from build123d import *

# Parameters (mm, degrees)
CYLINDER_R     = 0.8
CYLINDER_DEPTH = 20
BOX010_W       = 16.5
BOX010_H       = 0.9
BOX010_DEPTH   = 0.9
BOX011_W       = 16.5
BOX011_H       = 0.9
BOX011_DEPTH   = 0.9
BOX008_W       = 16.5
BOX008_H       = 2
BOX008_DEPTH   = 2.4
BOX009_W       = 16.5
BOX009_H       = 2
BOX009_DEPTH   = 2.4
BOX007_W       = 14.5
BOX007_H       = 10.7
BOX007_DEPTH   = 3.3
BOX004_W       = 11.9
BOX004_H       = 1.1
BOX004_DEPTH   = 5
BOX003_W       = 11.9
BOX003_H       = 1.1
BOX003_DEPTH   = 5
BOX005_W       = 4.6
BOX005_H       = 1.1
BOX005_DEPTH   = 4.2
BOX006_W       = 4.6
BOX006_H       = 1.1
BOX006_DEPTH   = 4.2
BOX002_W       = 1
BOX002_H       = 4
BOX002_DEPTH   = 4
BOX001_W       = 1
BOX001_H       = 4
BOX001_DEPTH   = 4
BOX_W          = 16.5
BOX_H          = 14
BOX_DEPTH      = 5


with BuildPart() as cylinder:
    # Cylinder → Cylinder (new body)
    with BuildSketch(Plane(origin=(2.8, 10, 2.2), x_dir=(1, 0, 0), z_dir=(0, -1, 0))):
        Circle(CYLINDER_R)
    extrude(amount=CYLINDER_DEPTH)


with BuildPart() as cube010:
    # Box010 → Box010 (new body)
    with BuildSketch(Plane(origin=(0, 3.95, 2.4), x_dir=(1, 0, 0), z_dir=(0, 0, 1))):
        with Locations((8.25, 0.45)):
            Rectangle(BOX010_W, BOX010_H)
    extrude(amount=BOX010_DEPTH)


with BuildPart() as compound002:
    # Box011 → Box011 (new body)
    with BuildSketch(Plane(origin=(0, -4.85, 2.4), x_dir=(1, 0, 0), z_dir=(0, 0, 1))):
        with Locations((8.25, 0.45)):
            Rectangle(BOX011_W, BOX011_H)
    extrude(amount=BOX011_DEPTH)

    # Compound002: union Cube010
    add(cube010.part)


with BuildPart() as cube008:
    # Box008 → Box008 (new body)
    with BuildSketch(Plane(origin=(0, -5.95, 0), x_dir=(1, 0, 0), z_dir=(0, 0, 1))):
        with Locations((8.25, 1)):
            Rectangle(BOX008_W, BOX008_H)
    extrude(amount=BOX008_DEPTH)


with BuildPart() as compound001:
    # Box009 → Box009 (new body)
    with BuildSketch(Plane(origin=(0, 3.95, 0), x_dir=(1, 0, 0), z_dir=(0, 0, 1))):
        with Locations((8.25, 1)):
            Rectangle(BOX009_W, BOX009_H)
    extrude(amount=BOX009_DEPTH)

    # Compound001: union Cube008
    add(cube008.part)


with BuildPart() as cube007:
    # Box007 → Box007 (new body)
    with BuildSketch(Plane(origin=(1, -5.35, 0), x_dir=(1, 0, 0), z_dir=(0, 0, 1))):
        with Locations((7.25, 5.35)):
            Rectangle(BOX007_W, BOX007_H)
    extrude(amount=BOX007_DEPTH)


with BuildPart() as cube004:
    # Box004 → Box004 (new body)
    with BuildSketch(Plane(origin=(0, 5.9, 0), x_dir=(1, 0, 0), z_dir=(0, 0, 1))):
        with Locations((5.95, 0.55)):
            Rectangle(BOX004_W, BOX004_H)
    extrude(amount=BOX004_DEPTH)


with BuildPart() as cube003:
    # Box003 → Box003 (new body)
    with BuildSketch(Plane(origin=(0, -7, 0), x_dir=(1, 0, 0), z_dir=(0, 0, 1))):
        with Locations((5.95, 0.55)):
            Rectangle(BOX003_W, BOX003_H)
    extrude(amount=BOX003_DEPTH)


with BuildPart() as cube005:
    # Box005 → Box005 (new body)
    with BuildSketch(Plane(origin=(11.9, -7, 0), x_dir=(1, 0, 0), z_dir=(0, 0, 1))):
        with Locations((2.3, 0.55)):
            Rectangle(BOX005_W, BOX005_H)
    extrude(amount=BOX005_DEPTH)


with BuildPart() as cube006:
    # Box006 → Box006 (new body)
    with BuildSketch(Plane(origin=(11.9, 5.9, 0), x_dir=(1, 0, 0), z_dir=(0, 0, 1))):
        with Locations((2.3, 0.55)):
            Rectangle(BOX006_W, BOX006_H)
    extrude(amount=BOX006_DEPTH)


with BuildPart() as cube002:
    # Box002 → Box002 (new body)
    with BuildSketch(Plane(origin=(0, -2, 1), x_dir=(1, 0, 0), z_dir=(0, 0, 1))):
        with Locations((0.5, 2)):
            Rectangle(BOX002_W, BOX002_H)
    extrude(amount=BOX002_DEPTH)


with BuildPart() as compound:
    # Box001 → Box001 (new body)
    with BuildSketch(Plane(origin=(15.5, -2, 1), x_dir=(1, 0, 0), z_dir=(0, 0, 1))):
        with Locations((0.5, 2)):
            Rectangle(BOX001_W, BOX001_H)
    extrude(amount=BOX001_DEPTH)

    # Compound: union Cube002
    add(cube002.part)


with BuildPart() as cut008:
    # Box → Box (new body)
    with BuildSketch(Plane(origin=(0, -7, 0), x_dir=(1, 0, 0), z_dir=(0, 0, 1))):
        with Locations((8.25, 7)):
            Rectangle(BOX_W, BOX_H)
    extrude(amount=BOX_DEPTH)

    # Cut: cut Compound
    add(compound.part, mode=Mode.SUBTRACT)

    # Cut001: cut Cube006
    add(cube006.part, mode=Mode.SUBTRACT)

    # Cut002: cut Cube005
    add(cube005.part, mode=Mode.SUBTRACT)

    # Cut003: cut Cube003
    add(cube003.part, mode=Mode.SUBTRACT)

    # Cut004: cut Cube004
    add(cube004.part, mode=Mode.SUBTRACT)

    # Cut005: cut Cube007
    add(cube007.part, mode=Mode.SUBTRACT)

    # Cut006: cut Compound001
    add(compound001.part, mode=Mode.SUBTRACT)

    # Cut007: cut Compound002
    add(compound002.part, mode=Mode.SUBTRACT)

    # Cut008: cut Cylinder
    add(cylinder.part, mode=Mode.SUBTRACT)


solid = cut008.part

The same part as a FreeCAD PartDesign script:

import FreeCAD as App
import Part
import Sketcher

V = App.Vector

doc = App.newDocument("Part")
params = doc.addObject("Spreadsheet::Sheet", "Params")
for row, (alias, value) in enumerate([
    ("sketch1_diameter", "1.6 mm"),
    ("pad1_length", "20 mm"),
    ("sketch2_width", "16.5 mm"),
    ("sketch2_height", "0.9 mm"),
    ("pad2_length", "0.9 mm"),
    ("sketch3_width", "16.5 mm"),
    ("sketch3_height", "0.9 mm"),
    ("pad3_length", "0.9 mm"),
    ("sketch4_height", "2 mm"),
    ("sketch4_width", "16.5 mm"),
    ("pad4_length", "2.4 mm"),
    ("sketch5_height", "2 mm"),
    ("sketch5_width", "16.5 mm"),
    ("pad5_length", "2.4 mm"),
    ("sketch6_width", "14.5 mm"),
    ("sketch6_height", "10.7 mm"),
    ("pad6_length", "3.3 mm"),
    ("sketch7_width", "11.9 mm"),
    ("sketch7_height", "1.1 mm"),
    ("pad7_length", "5 mm"),
    ("sketch8_width", "11.9 mm"),
    ("sketch8_height", "1.1 mm"),
    ("pad8_length", "5 mm"),
    ("sketch9_width", "4.6 mm"),
    ("sketch9_height", "1.1 mm"),
    ("pad9_length", "4.2 mm"),
    ("sketch10_width", "4.6 mm"),
    ("sketch10_height", "1.1 mm"),
    ("pad10_length", "4.2 mm"),
    ("sketch11_width", "1 mm"),
    ("sketch11_height", "4 mm"),
    ("pad11_length", "4 mm"),
    ("sketch12_width", "1 mm"),
    ("sketch12_height", "4 mm"),
    ("pad12_length", "4 mm"),
    ("sketch13_height", "14 mm"),
    ("sketch13_width", "16.5 mm"),
    ("pad13_length", "5 mm"),
], start=1):
    params.set(f"A{row}", alias)
    params.set(f"B{row}", "=" + value)
    params.setAlias(f"B{row}", alias)

body = doc.addObject("PartDesign::Body", "Body")

sketch1 = body.newObject("Sketcher::SketchObject", "Sketch")
sketch1.AttachmentSupport = (doc.getObject("XZ_Plane"), [""])
sketch1.MapMode = "FlatFace"
sketch1.AttachmentOffset = App.Placement(V(0, 0, -10), App.Rotation())
sketch1.addGeometry(Part.Circle(V(2.8, 2.2, 0), V(0, 0, 1), 0.8), False)
sketch1.addConstraint([
    Sketcher.Constraint("Diameter", 0, 1.6),
    Sketcher.Constraint("DistanceX", -1, 1, 0, 3, 2.8),
    Sketcher.Constraint("DistanceY", -1, 1, 0, 3, 2.2),
])
sketch1.setExpression("Constraints[0]", "Params.sketch1_diameter")
pad1 = body.newObject("PartDesign::Pad", "Pad")
pad1.Profile = sketch1
pad1.setExpression("Length", "Params.pad1_length")
body2 = doc.addObject("PartDesign::Body", "Body001")

sketch2 = body2.newObject("Sketcher::SketchObject", "Sketch001")
sketch2.AttachmentSupport = (doc.getObject("XY_Plane001"), [""])
sketch2.MapMode = "FlatFace"
sketch2.AttachmentOffset = App.Placement(V(0, 0, 2.4), App.Rotation())
sketch2.addGeometry([
    Part.LineSegment(V(0, 4.8, 0), V(0, 4, 0)),
    Part.LineSegment(V(0, 4, 0), V(16.5, 4, 0)),
    Part.LineSegment(V(16.5, 4, 0), V(16.5, 4.8, 0)),
    Part.LineSegment(V(16.5, 4.8, 0), V(0, 4.8, 0)),
], False)
sketch2.addConstraint([
    Sketcher.Constraint("Coincident", 0, 2, 1, 1),
    Sketcher.Constraint("Coincident", 1, 2, 2, 1),
    Sketcher.Constraint("Coincident", 2, 2, 3, 1),
    Sketcher.Constraint("Coincident", 3, 2, 0, 1),
    Sketcher.Constraint("Vertical", 0),
    Sketcher.Constraint("Horizontal", 1),
    Sketcher.Constraint("Vertical", 2),
    Sketcher.Constraint("Horizontal", 3),
    Sketcher.Constraint("PointOnObject", 0, 2, -2),
    Sketcher.Constraint("DistanceX", 1, 1, 1, 2, 16.5),
    Sketcher.Constraint("DistanceY", 0, 2, 0, 1, 0.9),
    Sketcher.Constraint("DistanceY", -1, 1, 0, 2, 3.95),
])
sketch2.setExpression("Constraints[9]", "Params.sketch2_width")
sketch2.setExpression("Constraints[10]", "Params.sketch2_height")
pad2 = body2.newObject("PartDesign::Pad", "Pad001")
pad2.Profile = sketch2
pad2.setExpression("Length", "Params.pad2_length")
body3 = doc.addObject("PartDesign::Body", "Body002")
body3.AllowCompound = True

sketch3 = body3.newObject("Sketcher::SketchObject", "Sketch002")
sketch3.AttachmentSupport = (doc.getObject("XY_Plane002"), [""])
sketch3.MapMode = "FlatFace"
sketch3.AttachmentOffset = App.Placement(V(0, 0, 2.4), App.Rotation())
sketch3.addGeometry([
    Part.LineSegment(V(0, -4, 0), V(0, -4.8, 0)),
    Part.LineSegment(V(0, -4.8, 0), V(16.5, -4.8, 0)),
    Part.LineSegment(V(16.5, -4.8, 0), V(16.5, -4, 0)),
    Part.LineSegment(V(16.5, -4, 0), V(0, -4, 0)),
], False)
sketch3.addConstraint([
    Sketcher.Constraint("Coincident", 0, 2, 1, 1),
    Sketcher.Constraint("Coincident", 1, 2, 2, 1),
    Sketcher.Constraint("Coincident", 2, 2, 3, 1),
    Sketcher.Constraint("Coincident", 3, 2, 0, 1),
    Sketcher.Constraint("Vertical", 0),
    Sketcher.Constraint("Horizontal", 1),
    Sketcher.Constraint("Vertical", 2),
    Sketcher.Constraint("Horizontal", 3),
    Sketcher.Constraint("PointOnObject", 0, 2, -2),
    Sketcher.Constraint("DistanceX", 1, 1, 1, 2, 16.5),
    Sketcher.Constraint("DistanceY", 0, 2, 0, 1, 0.9),
    Sketcher.Constraint("DistanceY", 0, 2, -1, 1, 4.85),
])
sketch3.setExpression("Constraints[9]", "Params.sketch3_width")
sketch3.setExpression("Constraints[10]", "Params.sketch3_height")
pad3 = body3.newObject("PartDesign::Pad", "Pad002")
pad3.Profile = sketch3
pad3.setExpression("Length", "Params.pad3_length")
doc.recompute()

boolean = body3.newObject("PartDesign::Boolean", "Boolean")
boolean.Type = "Fuse"
boolean.addObjects([body2])
body4 = doc.addObject("PartDesign::Body", "Body003")

sketch4 = body4.newObject("Sketcher::SketchObject", "Sketch003")
sketch4.AttachmentSupport = (doc.getObject("XY_Plane003"), [""])
sketch4.MapMode = "FlatFace"
sketch4.addGeometry([
    Part.LineSegment(V(0, -4, 0), V(0, -6, 0)),
    Part.LineSegment(V(0, -6, 0), V(16.5, -6, 0)),
    Part.LineSegment(V(16.5, -6, 0), V(16.5, -4, 0)),
    Part.LineSegment(V(16.5, -4, 0), V(0, -4, 0)),
], False)
sketch4.addConstraint([
    Sketcher.Constraint("Coincident", 0, 2, 1, 1),
    Sketcher.Constraint("Coincident", 1, 2, 2, 1),
    Sketcher.Constraint("Coincident", 2, 2, 3, 1),
    Sketcher.Constraint("Coincident", 3, 2, 0, 1),
    Sketcher.Constraint("Vertical", 0),
    Sketcher.Constraint("Horizontal", 1),
    Sketcher.Constraint("Vertical", 2),
    Sketcher.Constraint("Horizontal", 3),
    Sketcher.Constraint("PointOnObject", 0, 2, -2),
    Sketcher.Constraint("DistanceY", 0, 2, 0, 1, 2.0),
    Sketcher.Constraint("DistanceX", 1, 1, 1, 2, 16.5),
    Sketcher.Constraint("DistanceY", 0, 2, -1, 1, 5.95),
])
sketch4.setExpression("Constraints[9]", "Params.sketch4_height")
sketch4.setExpression("Constraints[10]", "Params.sketch4_width")
pad4 = body4.newObject("PartDesign::Pad", "Pad003")
pad4.Profile = sketch4
pad4.setExpression("Length", "Params.pad4_length")
body5 = doc.addObject("PartDesign::Body", "Body004")
body5.AllowCompound = True

sketch5 = body5.newObject("Sketcher::SketchObject", "Sketch004")
sketch5.AttachmentSupport = (doc.getObject("XY_Plane004"), [""])
sketch5.MapMode = "FlatFace"
sketch5.addGeometry([
    Part.LineSegment(V(0, 6, 0), V(0, 4, 0)),
    Part.LineSegment(V(0, 4, 0), V(16.5, 4, 0)),
    Part.LineSegment(V(16.5, 4, 0), V(16.5, 6, 0)),
    Part.LineSegment(V(16.5, 6, 0), V(0, 6, 0)),
], False)
sketch5.addConstraint([
    Sketcher.Constraint("Coincident", 0, 2, 1, 1),
    Sketcher.Constraint("Coincident", 1, 2, 2, 1),
    Sketcher.Constraint("Coincident", 2, 2, 3, 1),
    Sketcher.Constraint("Coincident", 3, 2, 0, 1),
    Sketcher.Constraint("Vertical", 0),
    Sketcher.Constraint("Horizontal", 1),
    Sketcher.Constraint("Vertical", 2),
    Sketcher.Constraint("Horizontal", 3),
    Sketcher.Constraint("PointOnObject", 0, 2, -2),
    Sketcher.Constraint("DistanceY", 0, 2, 0, 1, 2.0),
    Sketcher.Constraint("DistanceX", 1, 1, 1, 2, 16.5),
    Sketcher.Constraint("DistanceY", -1, 1, 0, 2, 3.95),
])
sketch5.setExpression("Constraints[9]", "Params.sketch5_height")
sketch5.setExpression("Constraints[10]", "Params.sketch5_width")
pad5 = body5.newObject("PartDesign::Pad", "Pad004")
pad5.Profile = sketch5
pad5.setExpression("Length", "Params.pad5_length")
doc.recompute()

boolean2 = body5.newObject("PartDesign::Boolean", "Boolean001")
boolean2.Type = "Fuse"
boolean2.addObjects([body4])
body6 = doc.addObject("PartDesign::Body", "Body005")

sketch6 = body6.newObject("Sketcher::SketchObject", "Sketch005")
sketch6.AttachmentSupport = (doc.getObject("XY_Plane005"), [""])
sketch6.MapMode = "FlatFace"
sketch6.addGeometry([
    Part.LineSegment(V(1, 5, 0), V(1, -5, 0)),
    Part.LineSegment(V(1, -5, 0), V(16, -5, 0)),
    Part.LineSegment(V(16, -5, 0), V(16, 5, 0)),
    Part.LineSegment(V(16, 5, 0), V(1, 5, 0)),
], False)
sketch6.addConstraint([
    Sketcher.Constraint("Coincident", 0, 2, 1, 1),
    Sketcher.Constraint("Coincident", 1, 2, 2, 1),
    Sketcher.Constraint("Coincident", 2, 2, 3, 1),
    Sketcher.Constraint("Coincident", 3, 2, 0, 1),
    Sketcher.Constraint("Vertical", 0),
    Sketcher.Constraint("Horizontal", 1),
    Sketcher.Constraint("Vertical", 2),
    Sketcher.Constraint("Horizontal", 3),
    Sketcher.Constraint("DistanceX", 1, 1, 1, 2, 14.5),
    Sketcher.Constraint("DistanceY", 0, 2, 0, 1, 10.7),
    Sketcher.Constraint("DistanceX", -1, 1, 0, 2, 1.0),
    Sketcher.Constraint("DistanceY", 0, 2, -1, 1, 5.35),
])
sketch6.setExpression("Constraints[8]", "Params.sketch6_width")
sketch6.setExpression("Constraints[9]", "Params.sketch6_height")
pad6 = body6.newObject("PartDesign::Pad", "Pad005")
pad6.Profile = sketch6
pad6.setExpression("Length", "Params.pad6_length")
body7 = doc.addObject("PartDesign::Body", "Body006")

sketch7 = body7.newObject("Sketcher::SketchObject", "Sketch006")
sketch7.AttachmentSupport = (doc.getObject("XY_Plane006"), [""])
sketch7.MapMode = "FlatFace"
sketch7.addGeometry([
    Part.LineSegment(V(0, 7, 0), V(0, 5.9, 0)),
    Part.LineSegment(V(0, 5.9, 0), V(11.9, 5.9, 0)),
    Part.LineSegment(V(11.9, 5.9, 0), V(11.9, 7, 0)),
    Part.LineSegment(V(11.9, 7, 0), V(0, 7, 0)),
], False)
sketch7.addConstraint([
    Sketcher.Constraint("Coincident", 0, 2, 1, 1),
    Sketcher.Constraint("Coincident", 1, 2, 2, 1),
    Sketcher.Constraint("Coincident", 2, 2, 3, 1),
    Sketcher.Constraint("Coincident", 3, 2, 0, 1),
    Sketcher.Constraint("Vertical", 0),
    Sketcher.Constraint("Horizontal", 1),
    Sketcher.Constraint("Vertical", 2),
    Sketcher.Constraint("Horizontal", 3),
    Sketcher.Constraint("PointOnObject", 0, 2, -2),
    Sketcher.Constraint("DistanceX", 1, 1, 1, 2, 11.9),
    Sketcher.Constraint("DistanceY", 0, 2, 0, 1, 1.1),
    Sketcher.Constraint("DistanceY", -1, 1, 2, 2, 7.0),
])
sketch7.setExpression("Constraints[9]", "Params.sketch7_width")
sketch7.setExpression("Constraints[10]", "Params.sketch7_height")
pad7 = body7.newObject("PartDesign::Pad", "Pad006")
pad7.Profile = sketch7
pad7.setExpression("Length", "Params.pad7_length")
body8 = doc.addObject("PartDesign::Body", "Body007")

sketch8 = body8.newObject("Sketcher::SketchObject", "Sketch007")
sketch8.AttachmentSupport = (doc.getObject("XY_Plane007"), [""])
sketch8.MapMode = "FlatFace"
sketch8.addGeometry([
    Part.LineSegment(V(0, -5.9, 0), V(0, -7, 0)),
    Part.LineSegment(V(0, -7, 0), V(11.9, -7, 0)),
    Part.LineSegment(V(11.9, -7, 0), V(11.9, -5.9, 0)),
    Part.LineSegment(V(11.9, -5.9, 0), V(0, -5.9, 0)),
], False)
sketch8.addConstraint([
    Sketcher.Constraint("Coincident", 0, 2, 1, 1),
    Sketcher.Constraint("Coincident", 1, 2, 2, 1),
    Sketcher.Constraint("Coincident", 2, 2, 3, 1),
    Sketcher.Constraint("Coincident", 3, 2, 0, 1),
    Sketcher.Constraint("Vertical", 0),
    Sketcher.Constraint("Horizontal", 1),
    Sketcher.Constraint("Vertical", 2),
    Sketcher.Constraint("Horizontal", 3),
    Sketcher.Constraint("PointOnObject", 0, 2, -2),
    Sketcher.Constraint("DistanceX", 1, 1, 1, 2, 11.9),
    Sketcher.Constraint("DistanceY", 0, 2, 0, 1, 1.1),
    Sketcher.Constraint("DistanceY", 0, 2, -1, 1, 7.0),
])
sketch8.setExpression("Constraints[9]", "Params.sketch8_width")
sketch8.setExpression("Constraints[10]", "Params.sketch8_height")
pad8 = body8.newObject("PartDesign::Pad", "Pad007")
pad8.Profile = sketch8
pad8.setExpression("Length", "Params.pad8_length")
body9 = doc.addObject("PartDesign::Body", "Body008")

sketch9 = body9.newObject("Sketcher::SketchObject", "Sketch008")
sketch9.AttachmentSupport = (doc.getObject("XY_Plane008"), [""])
sketch9.MapMode = "FlatFace"
sketch9.addGeometry([
    Part.LineSegment(V(11.9, -5.9, 0), V(11.9, -7, 0)),
    Part.LineSegment(V(11.9, -7, 0), V(16.5, -7, 0)),
    Part.LineSegment(V(16.5, -7, 0), V(16.5, -5.9, 0)),
    Part.LineSegment(V(16.5, -5.9, 0), V(11.9, -5.9, 0)),
], False)
sketch9.addConstraint([
    Sketcher.Constraint("Coincident", 0, 2, 1, 1),
    Sketcher.Constraint("Coincident", 1, 2, 2, 1),
    Sketcher.Constraint("Coincident", 2, 2, 3, 1),
    Sketcher.Constraint("Coincident", 3, 2, 0, 1),
    Sketcher.Constraint("Vertical", 0),
    Sketcher.Constraint("Horizontal", 1),
    Sketcher.Constraint("Vertical", 2),
    Sketcher.Constraint("Horizontal", 3),
    Sketcher.Constraint("DistanceX", 1, 1, 1, 2, 4.6),
    Sketcher.Constraint("DistanceY", 0, 2, 0, 1, 1.1),
    Sketcher.Constraint("DistanceY", 0, 2, -1, 1, 7.0),
    Sketcher.Constraint("DistanceX", -1, 1, 0, 2, 11.9),
])
sketch9.setExpression("Constraints[8]", "Params.sketch9_width")
sketch9.setExpression("Constraints[9]", "Params.sketch9_height")
pad9 = body9.newObject("PartDesign::Pad", "Pad008")
pad9.Profile = sketch9
pad9.setExpression("Length", "Params.pad9_length")
body10 = doc.addObject("PartDesign::Body", "Body009")

sketch10 = body10.newObject("Sketcher::SketchObject", "Sketch009")
sketch10.AttachmentSupport = (doc.getObject("XY_Plane009"), [""])
sketch10.MapMode = "FlatFace"
sketch10.addGeometry([
    Part.LineSegment(V(11.9, 7, 0), V(11.9, 5.9, 0)),
    Part.LineSegment(V(11.9, 5.9, 0), V(16.5, 5.9, 0)),
    Part.LineSegment(V(16.5, 5.9, 0), V(16.5, 7, 0)),
    Part.LineSegment(V(16.5, 7, 0), V(11.9, 7, 0)),
], False)
sketch10.addConstraint([
    Sketcher.Constraint("Coincident", 0, 2, 1, 1),
    Sketcher.Constraint("Coincident", 1, 2, 2, 1),
    Sketcher.Constraint("Coincident", 2, 2, 3, 1),
    Sketcher.Constraint("Coincident", 3, 2, 0, 1),
    Sketcher.Constraint("Vertical", 0),
    Sketcher.Constraint("Horizontal", 1),
    Sketcher.Constraint("Vertical", 2),
    Sketcher.Constraint("Horizontal", 3),
    Sketcher.Constraint("DistanceX", 1, 1, 1, 2, 4.6),
    Sketcher.Constraint("DistanceY", 0, 2, 0, 1, 1.1),
    Sketcher.Constraint("DistanceY", -1, 1, 2, 2, 7.0),
    Sketcher.Constraint("DistanceX", -1, 1, 0, 2, 11.9),
])
sketch10.setExpression("Constraints[8]", "Params.sketch10_width")
sketch10.setExpression("Constraints[9]", "Params.sketch10_height")
pad10 = body10.newObject("PartDesign::Pad", "Pad009")
pad10.Profile = sketch10
pad10.setExpression("Length", "Params.pad10_length")
body11 = doc.addObject("PartDesign::Body", "Body010")

sketch11 = body11.newObject("Sketcher::SketchObject", "Sketch010")
sketch11.AttachmentSupport = (doc.getObject("XY_Plane010"), [""])
sketch11.MapMode = "FlatFace"
sketch11.AttachmentOffset = App.Placement(V(0, 0, 1), App.Rotation())
sketch11.addGeometry([
    Part.LineSegment(V(0, 2, 0), V(0, -2, 0)),
    Part.LineSegment(V(0, -2, 0), V(1, -2, 0)),
    Part.LineSegment(V(1, -2, 0), V(1, 2, 0)),
    Part.LineSegment(V(1, 2, 0), V(0, 2, 0)),
], False)
sketch11.addConstraint([
    Sketcher.Constraint("Coincident", 0, 2, 1, 1),
    Sketcher.Constraint("Coincident", 1, 2, 2, 1),
    Sketcher.Constraint("Coincident", 2, 2, 3, 1),
    Sketcher.Constraint("Coincident", 3, 2, 0, 1),
    Sketcher.Constraint("Vertical", 0),
    Sketcher.Constraint("Horizontal", 1),
    Sketcher.Constraint("Vertical", 2),
    Sketcher.Constraint("Horizontal", 3),
    Sketcher.Constraint("Symmetric", 0, 2, 3, 2, -1, 1),
    Sketcher.Constraint("DistanceX", 1, 1, 1, 2, 1.0),
    Sketcher.Constraint("DistanceY", 0, 2, 0, 1, 4.0),
])
sketch11.setExpression("Constraints[9]", "Params.sketch11_width")
sketch11.setExpression("Constraints[10]", "Params.sketch11_height")
pad11 = body11.newObject("PartDesign::Pad", "Pad010")
pad11.Profile = sketch11
pad11.setExpression("Length", "Params.pad11_length")
body12 = doc.addObject("PartDesign::Body", "Body011")
body12.AllowCompound = True

sketch12 = body12.newObject("Sketcher::SketchObject", "Sketch011")
sketch12.AttachmentSupport = (doc.getObject("XY_Plane011"), [""])
sketch12.MapMode = "FlatFace"
sketch12.AttachmentOffset = App.Placement(V(0, 0, 1), App.Rotation())
sketch12.addGeometry([
    Part.LineSegment(V(15.5, 2, 0), V(15.5, -2, 0)),
    Part.LineSegment(V(15.5, -2, 0), V(16.5, -2, 0)),
    Part.LineSegment(V(16.5, -2, 0), V(16.5, 2, 0)),
    Part.LineSegment(V(16.5, 2, 0), V(15.5, 2, 0)),
], False)
sketch12.addConstraint([
    Sketcher.Constraint("Coincident", 0, 2, 1, 1),
    Sketcher.Constraint("Coincident", 1, 2, 2, 1),
    Sketcher.Constraint("Coincident", 2, 2, 3, 1),
    Sketcher.Constraint("Coincident", 3, 2, 0, 1),
    Sketcher.Constraint("Vertical", 0),
    Sketcher.Constraint("Horizontal", 1),
    Sketcher.Constraint("Vertical", 2),
    Sketcher.Constraint("Horizontal", 3),
    Sketcher.Constraint("DistanceX", 1, 1, 1, 2, 1.0),
    Sketcher.Constraint("DistanceY", 0, 2, 0, 1, 4.0),
    Sketcher.Constraint("DistanceY", 0, 2, -1, 1, 2.0),
    Sketcher.Constraint("DistanceX", -1, 1, 0, 2, 15.5),
])
sketch12.setExpression("Constraints[8]", "Params.sketch12_width")
sketch12.setExpression("Constraints[9]", "Params.sketch12_height")
pad12 = body12.newObject("PartDesign::Pad", "Pad011")
pad12.Profile = sketch12
pad12.setExpression("Length", "Params.pad12_length")
doc.recompute()

boolean3 = body12.newObject("PartDesign::Boolean", "Boolean002")
boolean3.Type = "Fuse"
boolean3.addObjects([body11])
body13 = doc.addObject("PartDesign::Body", "Body012")

sketch13 = body13.newObject("Sketcher::SketchObject", "Sketch012")
sketch13.AttachmentSupport = (doc.getObject("XY_Plane012"), [""])
sketch13.MapMode = "FlatFace"
sketch13.addGeometry([
    Part.LineSegment(V(0, 7, 0), V(0, -7, 0)),
    Part.LineSegment(V(0, -7, 0), V(16, -7, 0)),
    Part.LineSegment(V(16, -7, 0), V(16, 7, 0)),
    Part.LineSegment(V(16, 7, 0), V(0, 7, 0)),
], False)
sketch13.addConstraint([
    Sketcher.Constraint("Coincident", 0, 2, 1, 1),
    Sketcher.Constraint("Coincident", 1, 2, 2, 1),
    Sketcher.Constraint("Coincident", 2, 2, 3, 1),
    Sketcher.Constraint("Coincident", 3, 2, 0, 1),
    Sketcher.Constraint("Vertical", 0),
    Sketcher.Constraint("Horizontal", 1),
    Sketcher.Constraint("Vertical", 2),
    Sketcher.Constraint("Horizontal", 3),
    Sketcher.Constraint("Symmetric", 0, 2, 3, 2, -1, 1),
    Sketcher.Constraint("DistanceY", 0, 2, 0, 1, 14.0),
    Sketcher.Constraint("DistanceX", 1, 1, 1, 2, 16.5),
])
sketch13.setExpression("Constraints[9]", "Params.sketch13_height")
sketch13.setExpression("Constraints[10]", "Params.sketch13_width")
pad13 = body13.newObject("PartDesign::Pad", "Pad012")
pad13.Profile = sketch13
pad13.setExpression("Length", "Params.pad13_length")
doc.recompute()

boolean4 = body13.newObject("PartDesign::Boolean", "Boolean003")
boolean4.Type = "Cut"
boolean4.addObjects([body12])
doc.recompute()

boolean5 = body13.newObject("PartDesign::Boolean", "Boolean004")
boolean5.Type = "Cut"
boolean5.addObjects([body10])
doc.recompute()

boolean6 = body13.newObject("PartDesign::Boolean", "Boolean005")
boolean6.Type = "Cut"
boolean6.addObjects([body9])
doc.recompute()

boolean7 = body13.newObject("PartDesign::Boolean", "Boolean006")
boolean7.Type = "Cut"
boolean7.addObjects([body8])
doc.recompute()

boolean8 = body13.newObject("PartDesign::Boolean", "Boolean007")
boolean8.Type = "Cut"
boolean8.addObjects([body7])
doc.recompute()

boolean9 = body13.newObject("PartDesign::Boolean", "Boolean008")
boolean9.Type = "Cut"
boolean9.addObjects([body6])
doc.recompute()

boolean10 = body13.newObject("PartDesign::Boolean", "Boolean009")
boolean10.Type = "Cut"
boolean10.addObjects([body5])
doc.recompute()

boolean11 = body13.newObject("PartDesign::Boolean", "Boolean010")
boolean11.Type = "Cut"
boolean11.addObjects([body3])
doc.recompute()

boolean12 = body13.newObject("PartDesign::Boolean", "Boolean011")
boolean12.Type = "Cut"
boolean12.addObjects([body])

doc.recompute()
